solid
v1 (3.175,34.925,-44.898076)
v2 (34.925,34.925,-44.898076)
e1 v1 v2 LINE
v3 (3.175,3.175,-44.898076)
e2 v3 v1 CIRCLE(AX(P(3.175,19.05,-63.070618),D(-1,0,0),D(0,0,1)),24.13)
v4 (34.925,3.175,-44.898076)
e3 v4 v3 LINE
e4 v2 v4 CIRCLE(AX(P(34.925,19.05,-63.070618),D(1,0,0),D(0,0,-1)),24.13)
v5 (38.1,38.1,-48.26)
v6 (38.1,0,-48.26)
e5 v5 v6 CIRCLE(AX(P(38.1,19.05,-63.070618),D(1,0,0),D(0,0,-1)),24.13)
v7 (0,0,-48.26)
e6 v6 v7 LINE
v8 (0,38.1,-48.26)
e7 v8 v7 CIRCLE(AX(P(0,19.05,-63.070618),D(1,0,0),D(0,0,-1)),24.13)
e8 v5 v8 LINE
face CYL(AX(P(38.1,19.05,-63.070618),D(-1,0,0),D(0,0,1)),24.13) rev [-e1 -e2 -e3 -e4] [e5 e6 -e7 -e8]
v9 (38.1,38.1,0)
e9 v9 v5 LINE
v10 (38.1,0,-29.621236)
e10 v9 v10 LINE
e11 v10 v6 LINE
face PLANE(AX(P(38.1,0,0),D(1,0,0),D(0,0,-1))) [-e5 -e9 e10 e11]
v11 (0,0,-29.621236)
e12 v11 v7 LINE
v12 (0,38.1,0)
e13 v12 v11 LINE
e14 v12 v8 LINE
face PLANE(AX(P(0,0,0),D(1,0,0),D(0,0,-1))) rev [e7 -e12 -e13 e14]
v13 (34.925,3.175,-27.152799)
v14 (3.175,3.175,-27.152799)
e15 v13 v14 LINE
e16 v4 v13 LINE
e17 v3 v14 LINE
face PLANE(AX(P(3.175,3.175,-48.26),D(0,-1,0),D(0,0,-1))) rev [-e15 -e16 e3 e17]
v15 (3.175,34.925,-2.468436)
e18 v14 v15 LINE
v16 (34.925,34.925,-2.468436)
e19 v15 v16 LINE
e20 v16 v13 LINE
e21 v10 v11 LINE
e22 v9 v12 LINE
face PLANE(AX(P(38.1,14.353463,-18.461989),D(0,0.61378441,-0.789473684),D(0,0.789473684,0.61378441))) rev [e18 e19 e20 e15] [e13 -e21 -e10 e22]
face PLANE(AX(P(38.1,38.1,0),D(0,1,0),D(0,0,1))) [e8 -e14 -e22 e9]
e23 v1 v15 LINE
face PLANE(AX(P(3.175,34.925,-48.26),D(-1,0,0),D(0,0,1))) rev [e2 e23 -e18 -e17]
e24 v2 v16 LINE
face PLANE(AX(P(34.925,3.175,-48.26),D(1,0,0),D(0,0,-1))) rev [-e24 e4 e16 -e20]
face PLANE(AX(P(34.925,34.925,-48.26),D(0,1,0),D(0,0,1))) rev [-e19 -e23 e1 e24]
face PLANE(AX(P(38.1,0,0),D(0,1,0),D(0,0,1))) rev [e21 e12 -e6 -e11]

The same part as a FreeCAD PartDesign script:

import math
import FreeCAD as App
import Part
import Sketcher
from FreeCAD import Vector
Q = App.Units.Quantity


def add_polygon(sketch, points):
    """Adds a closed chain of lines whose ends are joined by coincident constraints."""
    first, n = sketch.GeometryCount, len(points)
    for a, b in zip(points, points[1:] + points[:1]):
        sketch.addGeometry(Part.LineSegment(App.Vector(*a, 0), App.Vector(*b, 0)), False)
    for i in range(n):
        sketch.addConstraint(Sketcher.Constraint("Coincident", first + i, 2, first + (i + 1) % n, 1))

doc = App.newDocument("Part")
params = doc.addObject("Spreadsheet::Sheet", "Params")
for row, (alias, value) in enumerate([
    ("sketch1_radius", "0.95 in"),
    ("sketch1_height", "1.9 in"),
    ("sketch1_length", "1.9 in"),
    ("pad1_length", "1.5 in"),
    ("sketch2_width", "1.25 in"),
], start=1):
    params.set(f"A{row}", alias)
    params.set(f"B{row}", "=" + value)
    params.setAlias(f"B{row}", alias)

body = doc.addObject("PartDesign::Body", "Body")

sketch1 = body.newObject("Sketcher::SketchObject", "Sketch")
sketch1.AttachmentSupport = (doc.getObject("YZ_Plane"), [""])
sketch1.MapMode = "FlatFace"
sketch1.addGeometry([
    Part.LineSegment(Vector(38.1, -48.26, 0), Vector(38.1, 0, 0)),
    Part.LineSegment(Vector(38.1, 0, 0), Vector(0, -29.621236, 0)),
    Part.LineSegment(Vector(0, -29.621236, 0), Vector(0, -48.26, 0)),
    Part.ArcOfCircle(Part.Circle(Vector(19.05, -63.070618, 0), Vector(0, 0, 1), 24.13), math.radians(37.863646), math.radians(142.136354)),
], False)
sketch1.addConstraint([
    Sketcher.Constraint("Coincident", 0, 2, 1, 1),
    Sketcher.Constraint("Coincident", 1, 2, 2, 1),
    Sketcher.Constraint("Coincident", 2, 2, 3, 2),
    Sketcher.Constraint("Coincident", 3, 1, 0, 1),
    Sketcher.Constraint("Vertical", 0),
    Sketcher.Constraint("Vertical", 2),
    Sketcher.Constraint("PointOnObject", 0, 2, -1),
    Sketcher.Constraint("PointOnObject", 1, 2, -2),
    Sketcher.Constraint("Horizontal", 2, 2, 3, 1),
    Sketcher.Constraint("Radius", 3, Q("0.95 in")),
    Sketcher.Constraint("DistanceY", 0, 1, 0, 2, Q("1.9 in")),
    Sketcher.Constraint("Distance", 1, Q("1.9 in")),
    Sketcher.Constraint("DistanceX", -1, 1, 0, 2, Q("1.5 in")),
])
sketch1.setExpression("Constraints[9]", "Params.sketch1_radius")
sketch1.setExpression("Constraints[10]", "Params.sketch1_height")
sketch1.setExpression("Constraints[11]", "Params.sketch1_length")
pad1 = body.newObject("PartDesign::Pad", "Pad")
pad1.Profile = sketch1
pad1.setExpression("Length", "Params.pad1_length")

sketch2 = body.newObject("Sketcher::SketchObject", "Sketch001")
sketch2.AttachmentSupport = (doc.getObject("XY_Plane"), [""])
sketch2.MapMode = "FlatFace"
add_polygon(sketch2, [(3.175, 34.925), (3.175, 3.175), (34.925, 3.175), (34.925, 34.925)])
sketch2.addConstraint([
    Sketcher.Constraint("Vertical", 0),
    Sketcher.Constraint("Horizontal", 1),
    Sketcher.Constraint("Vertical", 2),
    Sketcher.Constraint("Horizontal", 3),
    Sketcher.Constraint("Equal", 3, 0),
    Sketcher.Constraint("DistanceX", 1, 1, 1, 2, Q("1.25 in")),
    Sketcher.Constraint("DistanceX", -1, 1, 0, 2, Q("0.125 in")),
    Sketcher.Constraint("DistanceY", -1, 1, 0, 2, Q("0.125 in")),
])
sketch2.setExpression("Constraints[9]", "Params.sketch2_width")
pocket1 = body.newObject("PartDesign::Pocket", "Pocket")
pocket1.Profile = sketch2
pocket1.Type = "ThroughAll"

doc.recompute()
